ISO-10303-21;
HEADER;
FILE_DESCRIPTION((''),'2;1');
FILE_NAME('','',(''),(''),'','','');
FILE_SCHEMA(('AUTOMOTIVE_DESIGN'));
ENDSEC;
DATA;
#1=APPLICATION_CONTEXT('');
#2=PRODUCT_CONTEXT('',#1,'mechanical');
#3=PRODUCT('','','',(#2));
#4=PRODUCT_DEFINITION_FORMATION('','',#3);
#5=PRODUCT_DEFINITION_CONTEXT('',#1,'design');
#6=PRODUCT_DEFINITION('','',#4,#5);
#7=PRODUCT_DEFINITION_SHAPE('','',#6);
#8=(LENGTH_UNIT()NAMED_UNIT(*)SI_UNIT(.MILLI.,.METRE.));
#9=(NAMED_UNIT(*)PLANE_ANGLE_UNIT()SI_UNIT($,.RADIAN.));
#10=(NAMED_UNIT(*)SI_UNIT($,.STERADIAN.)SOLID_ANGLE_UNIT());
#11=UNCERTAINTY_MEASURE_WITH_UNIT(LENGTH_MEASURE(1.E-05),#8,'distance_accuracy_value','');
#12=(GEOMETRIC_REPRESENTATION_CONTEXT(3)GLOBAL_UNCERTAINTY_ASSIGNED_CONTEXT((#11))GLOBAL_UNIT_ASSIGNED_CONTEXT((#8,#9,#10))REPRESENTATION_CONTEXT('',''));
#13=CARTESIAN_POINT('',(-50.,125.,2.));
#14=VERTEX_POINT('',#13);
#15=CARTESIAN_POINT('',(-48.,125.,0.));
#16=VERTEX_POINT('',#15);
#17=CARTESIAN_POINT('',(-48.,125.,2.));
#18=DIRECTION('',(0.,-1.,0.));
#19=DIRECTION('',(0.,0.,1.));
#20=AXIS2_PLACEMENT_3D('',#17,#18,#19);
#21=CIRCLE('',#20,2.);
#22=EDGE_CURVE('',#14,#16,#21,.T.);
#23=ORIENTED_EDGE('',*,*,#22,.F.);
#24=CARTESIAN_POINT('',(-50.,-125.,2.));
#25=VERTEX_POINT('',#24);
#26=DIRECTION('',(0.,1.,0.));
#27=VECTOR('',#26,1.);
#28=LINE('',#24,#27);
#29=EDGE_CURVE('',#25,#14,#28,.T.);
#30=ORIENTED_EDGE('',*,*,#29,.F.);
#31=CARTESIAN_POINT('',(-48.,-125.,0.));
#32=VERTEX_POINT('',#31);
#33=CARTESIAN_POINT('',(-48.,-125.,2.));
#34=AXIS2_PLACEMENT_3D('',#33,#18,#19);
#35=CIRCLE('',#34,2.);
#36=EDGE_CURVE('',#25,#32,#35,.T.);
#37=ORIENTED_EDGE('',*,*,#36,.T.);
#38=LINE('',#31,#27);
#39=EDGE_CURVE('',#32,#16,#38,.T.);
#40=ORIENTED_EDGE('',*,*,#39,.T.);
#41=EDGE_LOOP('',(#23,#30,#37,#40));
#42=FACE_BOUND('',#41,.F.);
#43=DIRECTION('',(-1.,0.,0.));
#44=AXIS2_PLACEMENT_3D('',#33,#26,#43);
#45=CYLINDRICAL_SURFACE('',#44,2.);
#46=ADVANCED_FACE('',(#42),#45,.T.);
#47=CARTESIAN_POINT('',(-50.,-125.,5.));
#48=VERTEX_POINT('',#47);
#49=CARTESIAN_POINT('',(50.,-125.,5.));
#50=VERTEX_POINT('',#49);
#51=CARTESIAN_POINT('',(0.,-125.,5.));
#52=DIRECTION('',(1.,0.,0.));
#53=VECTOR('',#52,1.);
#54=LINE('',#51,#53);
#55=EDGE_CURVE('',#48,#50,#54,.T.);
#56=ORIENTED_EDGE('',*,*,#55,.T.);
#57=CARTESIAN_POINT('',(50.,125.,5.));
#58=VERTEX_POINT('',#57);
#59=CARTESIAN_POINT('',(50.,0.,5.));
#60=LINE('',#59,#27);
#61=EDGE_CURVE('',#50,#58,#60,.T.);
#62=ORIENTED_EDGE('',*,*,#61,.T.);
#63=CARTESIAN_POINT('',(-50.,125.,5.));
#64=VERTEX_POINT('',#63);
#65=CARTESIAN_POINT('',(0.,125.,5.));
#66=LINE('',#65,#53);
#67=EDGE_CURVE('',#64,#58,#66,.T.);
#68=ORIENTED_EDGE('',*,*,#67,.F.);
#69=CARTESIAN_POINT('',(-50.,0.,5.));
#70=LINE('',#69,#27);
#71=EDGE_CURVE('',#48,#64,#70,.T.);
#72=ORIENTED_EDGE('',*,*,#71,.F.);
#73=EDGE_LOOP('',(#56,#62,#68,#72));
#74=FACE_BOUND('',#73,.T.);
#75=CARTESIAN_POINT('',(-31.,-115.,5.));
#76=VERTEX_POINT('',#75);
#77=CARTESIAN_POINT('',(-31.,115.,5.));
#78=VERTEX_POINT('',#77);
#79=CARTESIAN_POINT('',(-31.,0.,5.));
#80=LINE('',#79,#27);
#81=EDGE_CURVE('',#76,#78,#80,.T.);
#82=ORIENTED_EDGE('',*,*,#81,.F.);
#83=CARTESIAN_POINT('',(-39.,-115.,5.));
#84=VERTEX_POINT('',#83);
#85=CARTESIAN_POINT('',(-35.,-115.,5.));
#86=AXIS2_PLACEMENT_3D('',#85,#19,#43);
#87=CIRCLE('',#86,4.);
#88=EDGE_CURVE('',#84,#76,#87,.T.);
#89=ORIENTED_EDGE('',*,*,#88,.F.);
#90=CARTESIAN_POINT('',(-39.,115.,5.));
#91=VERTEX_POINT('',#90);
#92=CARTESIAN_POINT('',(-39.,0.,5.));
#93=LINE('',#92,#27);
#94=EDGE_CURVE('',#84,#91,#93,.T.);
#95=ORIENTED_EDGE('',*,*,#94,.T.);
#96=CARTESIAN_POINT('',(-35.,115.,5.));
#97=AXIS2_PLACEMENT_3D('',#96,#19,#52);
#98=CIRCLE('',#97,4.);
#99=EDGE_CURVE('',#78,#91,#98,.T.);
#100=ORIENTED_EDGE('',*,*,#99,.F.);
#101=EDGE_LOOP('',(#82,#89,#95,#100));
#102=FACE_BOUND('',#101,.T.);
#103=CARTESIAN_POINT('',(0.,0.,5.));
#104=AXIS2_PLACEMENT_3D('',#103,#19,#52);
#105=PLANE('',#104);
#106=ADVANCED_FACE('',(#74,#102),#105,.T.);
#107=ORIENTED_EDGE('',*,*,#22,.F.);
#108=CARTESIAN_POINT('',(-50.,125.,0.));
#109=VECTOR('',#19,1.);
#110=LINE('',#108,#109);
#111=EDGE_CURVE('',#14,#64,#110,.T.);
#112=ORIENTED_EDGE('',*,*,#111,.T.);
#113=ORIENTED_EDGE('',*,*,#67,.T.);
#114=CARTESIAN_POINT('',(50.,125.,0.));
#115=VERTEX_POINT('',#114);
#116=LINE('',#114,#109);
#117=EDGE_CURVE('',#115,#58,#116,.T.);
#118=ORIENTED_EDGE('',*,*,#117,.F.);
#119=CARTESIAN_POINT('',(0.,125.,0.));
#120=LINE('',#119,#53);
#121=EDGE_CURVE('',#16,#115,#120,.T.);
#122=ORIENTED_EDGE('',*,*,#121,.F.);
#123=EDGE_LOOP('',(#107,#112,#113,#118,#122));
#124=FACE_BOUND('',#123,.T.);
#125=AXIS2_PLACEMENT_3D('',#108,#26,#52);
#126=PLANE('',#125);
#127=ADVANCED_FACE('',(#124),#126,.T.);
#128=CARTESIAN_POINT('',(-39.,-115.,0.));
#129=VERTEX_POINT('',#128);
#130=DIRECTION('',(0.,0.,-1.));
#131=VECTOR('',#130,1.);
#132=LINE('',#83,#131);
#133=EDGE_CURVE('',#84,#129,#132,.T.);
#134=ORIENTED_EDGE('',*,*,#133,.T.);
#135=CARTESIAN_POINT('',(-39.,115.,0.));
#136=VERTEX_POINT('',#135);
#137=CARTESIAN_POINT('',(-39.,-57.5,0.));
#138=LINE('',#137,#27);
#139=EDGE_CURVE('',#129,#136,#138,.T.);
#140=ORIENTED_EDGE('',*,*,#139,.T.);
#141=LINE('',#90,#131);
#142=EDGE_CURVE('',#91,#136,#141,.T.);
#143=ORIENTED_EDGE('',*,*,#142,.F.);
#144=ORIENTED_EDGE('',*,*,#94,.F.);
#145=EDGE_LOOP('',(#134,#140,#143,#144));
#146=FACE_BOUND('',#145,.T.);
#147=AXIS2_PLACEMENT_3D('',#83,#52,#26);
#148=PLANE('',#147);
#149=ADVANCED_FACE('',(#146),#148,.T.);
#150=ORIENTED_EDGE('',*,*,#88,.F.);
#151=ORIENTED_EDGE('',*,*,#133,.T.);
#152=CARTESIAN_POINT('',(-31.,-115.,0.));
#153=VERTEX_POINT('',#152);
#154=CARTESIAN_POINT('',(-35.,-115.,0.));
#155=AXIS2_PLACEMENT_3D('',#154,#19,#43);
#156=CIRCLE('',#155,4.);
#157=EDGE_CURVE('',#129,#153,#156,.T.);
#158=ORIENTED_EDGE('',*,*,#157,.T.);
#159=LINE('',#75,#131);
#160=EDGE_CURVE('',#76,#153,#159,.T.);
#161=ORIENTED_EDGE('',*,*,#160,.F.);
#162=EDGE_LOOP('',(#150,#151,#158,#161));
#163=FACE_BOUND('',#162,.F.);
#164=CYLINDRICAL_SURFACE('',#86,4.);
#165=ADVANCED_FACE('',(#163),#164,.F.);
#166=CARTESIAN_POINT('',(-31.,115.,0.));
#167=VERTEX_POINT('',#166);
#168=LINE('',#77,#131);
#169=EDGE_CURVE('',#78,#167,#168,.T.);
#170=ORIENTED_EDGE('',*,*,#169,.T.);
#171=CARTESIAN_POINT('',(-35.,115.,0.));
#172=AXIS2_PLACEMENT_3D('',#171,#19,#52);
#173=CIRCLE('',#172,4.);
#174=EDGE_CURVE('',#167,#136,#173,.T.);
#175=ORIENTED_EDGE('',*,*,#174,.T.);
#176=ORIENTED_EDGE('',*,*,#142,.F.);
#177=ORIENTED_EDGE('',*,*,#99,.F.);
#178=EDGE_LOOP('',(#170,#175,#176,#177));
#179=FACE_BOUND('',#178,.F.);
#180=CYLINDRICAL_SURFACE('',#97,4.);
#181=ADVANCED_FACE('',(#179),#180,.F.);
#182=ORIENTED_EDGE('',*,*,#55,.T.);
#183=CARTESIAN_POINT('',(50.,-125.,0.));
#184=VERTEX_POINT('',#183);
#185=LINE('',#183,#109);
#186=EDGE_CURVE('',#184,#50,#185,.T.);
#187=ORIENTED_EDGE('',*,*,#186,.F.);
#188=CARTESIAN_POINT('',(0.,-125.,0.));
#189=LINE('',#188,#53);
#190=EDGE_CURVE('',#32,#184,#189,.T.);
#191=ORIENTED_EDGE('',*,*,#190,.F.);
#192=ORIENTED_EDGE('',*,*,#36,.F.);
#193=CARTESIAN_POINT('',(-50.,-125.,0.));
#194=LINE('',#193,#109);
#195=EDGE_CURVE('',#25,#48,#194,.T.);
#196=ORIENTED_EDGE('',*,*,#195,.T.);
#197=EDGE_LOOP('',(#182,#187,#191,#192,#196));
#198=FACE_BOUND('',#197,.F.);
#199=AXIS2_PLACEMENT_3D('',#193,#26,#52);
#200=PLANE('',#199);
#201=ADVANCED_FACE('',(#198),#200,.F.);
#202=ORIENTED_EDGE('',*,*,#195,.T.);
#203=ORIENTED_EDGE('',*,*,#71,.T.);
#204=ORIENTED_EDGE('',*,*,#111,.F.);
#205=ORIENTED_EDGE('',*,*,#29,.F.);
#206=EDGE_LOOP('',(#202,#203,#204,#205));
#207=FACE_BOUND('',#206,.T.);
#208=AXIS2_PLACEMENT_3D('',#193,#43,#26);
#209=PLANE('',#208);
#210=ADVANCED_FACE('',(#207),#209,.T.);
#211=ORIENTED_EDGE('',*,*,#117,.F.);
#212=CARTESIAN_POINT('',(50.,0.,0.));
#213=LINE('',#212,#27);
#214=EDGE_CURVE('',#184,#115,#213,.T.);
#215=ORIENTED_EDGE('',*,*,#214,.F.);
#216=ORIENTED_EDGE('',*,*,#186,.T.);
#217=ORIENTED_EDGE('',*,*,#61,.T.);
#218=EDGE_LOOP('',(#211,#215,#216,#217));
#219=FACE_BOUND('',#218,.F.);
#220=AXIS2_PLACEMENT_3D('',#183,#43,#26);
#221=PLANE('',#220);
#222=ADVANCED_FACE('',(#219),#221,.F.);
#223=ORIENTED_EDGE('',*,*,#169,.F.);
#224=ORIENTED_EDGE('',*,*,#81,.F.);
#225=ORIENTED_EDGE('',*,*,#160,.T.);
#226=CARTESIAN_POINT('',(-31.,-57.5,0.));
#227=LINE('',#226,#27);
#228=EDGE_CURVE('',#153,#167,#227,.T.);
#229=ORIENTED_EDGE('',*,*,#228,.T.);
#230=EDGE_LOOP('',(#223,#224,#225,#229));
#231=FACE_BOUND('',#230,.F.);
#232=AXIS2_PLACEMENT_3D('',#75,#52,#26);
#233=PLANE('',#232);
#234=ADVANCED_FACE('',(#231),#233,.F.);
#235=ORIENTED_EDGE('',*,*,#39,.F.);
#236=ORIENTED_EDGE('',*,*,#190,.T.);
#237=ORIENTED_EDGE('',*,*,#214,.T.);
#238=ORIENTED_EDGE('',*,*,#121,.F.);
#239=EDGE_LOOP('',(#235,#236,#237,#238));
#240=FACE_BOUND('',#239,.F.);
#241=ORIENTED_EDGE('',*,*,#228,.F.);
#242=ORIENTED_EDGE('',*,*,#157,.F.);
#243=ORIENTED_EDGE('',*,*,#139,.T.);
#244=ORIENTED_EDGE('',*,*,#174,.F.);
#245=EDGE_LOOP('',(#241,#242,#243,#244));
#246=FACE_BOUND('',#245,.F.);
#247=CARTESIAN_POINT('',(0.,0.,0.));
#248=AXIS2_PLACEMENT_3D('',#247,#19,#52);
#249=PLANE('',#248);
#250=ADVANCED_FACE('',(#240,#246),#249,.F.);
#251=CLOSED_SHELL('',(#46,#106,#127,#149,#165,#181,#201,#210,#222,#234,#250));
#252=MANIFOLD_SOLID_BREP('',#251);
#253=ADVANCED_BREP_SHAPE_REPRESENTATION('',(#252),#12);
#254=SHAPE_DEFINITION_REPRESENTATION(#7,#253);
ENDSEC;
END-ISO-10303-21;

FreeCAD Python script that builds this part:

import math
import FreeCAD as App
import Part
import Sketcher

V = App.Vector
Q = App.Units.Quantity


def edges_at(feature, points):
    """Names of the edges that pass closest to the given points."""
    edges = feature.Shape.Edges
    near = lambda p: min(range(len(edges)), key=lambda i: edges[i].distToShape(Part.Vertex(*p))[0])
    return sorted({f"Edge{near(p) + 1}" for p in points})

doc = App.newDocument("Part")
params = doc.addObject("Spreadsheet::Sheet", "Params")
for row, (alias, value) in enumerate([
    ("sketch1_width", "100 mm"),
    ("sketch1_height", "250 mm"),
    ("pad1_length", "5 mm"),
    ("fillet_radius", "2 mm"),
    ("sketch2_radius", "4 mm"),
    ("sketch2_height", "230 mm"),
    ("pocket1_length", "25 mm"),
], start=1):
    params.set(f"A{row}", alias)
    params.set(f"B{row}", "=" + value)
    params.setAlias(f"B{row}", alias)

body = doc.addObject("PartDesign::Body", "Body")

# Sketch on XY plane
sketch1 = body.newObject("Sketcher::SketchObject", "Sketch")
sketch1.AttachmentSupport = (doc.getObject("XY_Plane"), [""])
sketch1.MapMode = "FlatFace"
sketch1.addGeometry([
    Part.LineSegment(V(-50, 125, 0), V(-50, -125, 0)),
    Part.LineSegment(V(-50, -125, 0), V(50, -125, 0)),
    Part.LineSegment(V(50, -125, 0), V(50, 125, 0)),
    Part.LineSegment(V(50, 125, 0), V(-50, 125, 0)),
], False)
sketch1.addConstraint([
    Sketcher.Constraint("Coincident", 0, 2, 1, 1),
    Sketcher.Constraint("Coincident", 1, 2, 2, 1),
    Sketcher.Constraint("Coincident", 2, 2, 3, 1),
    Sketcher.Constraint("Coincident", 3, 2, 0, 1),
    Sketcher.Constraint("Vertical", 0),
    Sketcher.Constraint("Horizontal", 1),
    Sketcher.Constraint("Vertical", 2),
    Sketcher.Constraint("Horizontal", 3),
    Sketcher.Constraint("Symmetric", 0, 2, 2, 2, -1, 1),
    Sketcher.Constraint("DistanceX", 1, 1, 1, 2, Q("100 mm")),
    Sketcher.Constraint("DistanceY", 0, 2, 0, 1, Q("250 mm")),
])
sketch1.setExpression("Constraints[9]", "Params.sketch1_width")
sketch1.setExpression("Constraints[10]", "Params.sketch1_height")
pad1 = body.newObject("PartDesign::Pad", "Pad")
pad1.Profile = sketch1
pad1.setExpression("Length", "Params.pad1_length")
doc.recompute()

fillet = body.newObject("PartDesign::Fillet", "Fillet")
fillet.Base = (pad1, edges_at(pad1, [(-50, 0, 0)]))
fillet.setExpression("Radius", "Params.fillet_radius")

# Sketch on XY plane
sketch2 = body.newObject("Sketcher::SketchObject", "Sketch001")
sketch2.AttachmentSupport = (doc.getObject("XY_Plane"), [""])
sketch2.MapMode = "FlatFace"
sketch2.AttachmentOffset = App.Placement(V(0, 0, 5), App.Rotation())
sketch2.addGeometry([
    Part.LineSegment(V(-39, 115, 0), V(-39, -115, 0)),
    Part.ArcOfCircle(Part.Circle(V(-35, -115, 0), V(0, 0, 1), 4), math.radians(180), math.radians(360)),
    Part.LineSegment(V(-31, -115, 0), V(-31, 115, 0)),
    Part.ArcOfCircle(Part.Circle(V(-35, 115, 0), V(0, 0, 1), 4), math.radians(0), math.radians(180)),
], False)
sketch2.addConstraint([
    Sketcher.Constraint("Tangent", 0, 2, 1, 1),
    Sketcher.Constraint("Tangent", 1, 2, 2, 1),
    Sketcher.Constraint("Tangent", 2, 2, 3, 1),
    Sketcher.Constraint("Tangent", 3, 2, 0, 1),
    Sketcher.Constraint("Vertical", 0),
    Sketcher.Constraint("Vertical", 2),
    Sketcher.Constraint("Radius", 1, Q("4 mm")),
    Sketcher.Constraint("DistanceY", 0, 2, 0, 1, Q("230 mm")),
    Sketcher.Constraint("DistanceX", 1, 3, -1, 1, Q("35 mm")),
    Sketcher.Constraint("DistanceY", 1, 3, -1, 1, Q("115 mm")),
])
sketch2.setExpression("Constraints[6]", "Params.sketch2_radius")
sketch2.setExpression("Constraints[7]", "Params.sketch2_height")
pocket1 = body.newObject("PartDesign::Pocket", "Pocket")
pocket1.Profile = sketch2
pocket1.setExpression("Length", "Params.pocket1_length")

doc.recompute()
